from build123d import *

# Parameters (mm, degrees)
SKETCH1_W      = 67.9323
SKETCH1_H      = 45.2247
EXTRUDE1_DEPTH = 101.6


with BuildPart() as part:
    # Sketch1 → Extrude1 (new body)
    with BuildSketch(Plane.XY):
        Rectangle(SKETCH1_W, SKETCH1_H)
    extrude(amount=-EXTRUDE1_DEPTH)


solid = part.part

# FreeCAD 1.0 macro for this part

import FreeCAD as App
import Part
import Sketcher
from FreeCAD import Vector
Q = App.Units.Quantity

doc = App.newDocument("Part")
body = doc.addObject("PartDesign::Body", "Body")

sketch1 = body.newObject("Sketcher::SketchObject", "Sketch")
sketch1.AttachmentSupport = (doc.getObject("XY_Plane"), [""])
sketch1.MapMode = "FlatFace"
sketch1.addGeometry(Part.LineSegment(Vector(-34, 23, 0), Vector(-34, -23, 0)), False)
sketch1.addGeometry(Part.LineSegment(Vector(-34, -23, 0), Vector(34, -23, 0)), False)
sketch1.addGeometry(Part.LineSegment(Vector(34, -23, 0), Vector(34, 23, 0)), False)
sketch1.addGeometry(Part.LineSegment(Vector(34, 23, 0), Vector(-34, 23, 0)), False)
sketch1.addConstraint(Sketcher.Constraint("Coincident", 0, 2, 1, 1))
sketch1.addConstraint(Sketcher.Constraint("Coincident", 1, 2, 2, 1))
sketch1.addConstraint(Sketcher.Constraint("Coincident", 2, 2, 3, 1))
sketch1.addConstraint(Sketcher.Constraint("Coincident", 3, 2, 0, 1))
sketch1.addConstraint(Sketcher.Constraint("Vertical", 0))
sketch1.addConstraint(Sketcher.Constraint("Horizontal", 1))
sketch1.addConstraint(Sketcher.Constraint("Vertical", 2))
sketch1.addConstraint(Sketcher.Constraint("Horizontal", 3))
sketch1.addConstraint(Sketcher.Constraint("Symmetric", 0, 2, 2, 2, -1, 1))
sketch1.addConstraint(Sketcher.Constraint("DistanceX", 1, 1, 1, 2, Q("2.6745 in")))
sketch1.addConstraint(Sketcher.Constraint("DistanceY", 0, 2, 0, 1, Q("1.7805 in")))
pad1 = body.newObject("PartDesign::Pad", "Pad")
pad1.Profile = sketch1
pad1.Length = Q("4 in")
pad1.Reversed = True

doc.recompute()
